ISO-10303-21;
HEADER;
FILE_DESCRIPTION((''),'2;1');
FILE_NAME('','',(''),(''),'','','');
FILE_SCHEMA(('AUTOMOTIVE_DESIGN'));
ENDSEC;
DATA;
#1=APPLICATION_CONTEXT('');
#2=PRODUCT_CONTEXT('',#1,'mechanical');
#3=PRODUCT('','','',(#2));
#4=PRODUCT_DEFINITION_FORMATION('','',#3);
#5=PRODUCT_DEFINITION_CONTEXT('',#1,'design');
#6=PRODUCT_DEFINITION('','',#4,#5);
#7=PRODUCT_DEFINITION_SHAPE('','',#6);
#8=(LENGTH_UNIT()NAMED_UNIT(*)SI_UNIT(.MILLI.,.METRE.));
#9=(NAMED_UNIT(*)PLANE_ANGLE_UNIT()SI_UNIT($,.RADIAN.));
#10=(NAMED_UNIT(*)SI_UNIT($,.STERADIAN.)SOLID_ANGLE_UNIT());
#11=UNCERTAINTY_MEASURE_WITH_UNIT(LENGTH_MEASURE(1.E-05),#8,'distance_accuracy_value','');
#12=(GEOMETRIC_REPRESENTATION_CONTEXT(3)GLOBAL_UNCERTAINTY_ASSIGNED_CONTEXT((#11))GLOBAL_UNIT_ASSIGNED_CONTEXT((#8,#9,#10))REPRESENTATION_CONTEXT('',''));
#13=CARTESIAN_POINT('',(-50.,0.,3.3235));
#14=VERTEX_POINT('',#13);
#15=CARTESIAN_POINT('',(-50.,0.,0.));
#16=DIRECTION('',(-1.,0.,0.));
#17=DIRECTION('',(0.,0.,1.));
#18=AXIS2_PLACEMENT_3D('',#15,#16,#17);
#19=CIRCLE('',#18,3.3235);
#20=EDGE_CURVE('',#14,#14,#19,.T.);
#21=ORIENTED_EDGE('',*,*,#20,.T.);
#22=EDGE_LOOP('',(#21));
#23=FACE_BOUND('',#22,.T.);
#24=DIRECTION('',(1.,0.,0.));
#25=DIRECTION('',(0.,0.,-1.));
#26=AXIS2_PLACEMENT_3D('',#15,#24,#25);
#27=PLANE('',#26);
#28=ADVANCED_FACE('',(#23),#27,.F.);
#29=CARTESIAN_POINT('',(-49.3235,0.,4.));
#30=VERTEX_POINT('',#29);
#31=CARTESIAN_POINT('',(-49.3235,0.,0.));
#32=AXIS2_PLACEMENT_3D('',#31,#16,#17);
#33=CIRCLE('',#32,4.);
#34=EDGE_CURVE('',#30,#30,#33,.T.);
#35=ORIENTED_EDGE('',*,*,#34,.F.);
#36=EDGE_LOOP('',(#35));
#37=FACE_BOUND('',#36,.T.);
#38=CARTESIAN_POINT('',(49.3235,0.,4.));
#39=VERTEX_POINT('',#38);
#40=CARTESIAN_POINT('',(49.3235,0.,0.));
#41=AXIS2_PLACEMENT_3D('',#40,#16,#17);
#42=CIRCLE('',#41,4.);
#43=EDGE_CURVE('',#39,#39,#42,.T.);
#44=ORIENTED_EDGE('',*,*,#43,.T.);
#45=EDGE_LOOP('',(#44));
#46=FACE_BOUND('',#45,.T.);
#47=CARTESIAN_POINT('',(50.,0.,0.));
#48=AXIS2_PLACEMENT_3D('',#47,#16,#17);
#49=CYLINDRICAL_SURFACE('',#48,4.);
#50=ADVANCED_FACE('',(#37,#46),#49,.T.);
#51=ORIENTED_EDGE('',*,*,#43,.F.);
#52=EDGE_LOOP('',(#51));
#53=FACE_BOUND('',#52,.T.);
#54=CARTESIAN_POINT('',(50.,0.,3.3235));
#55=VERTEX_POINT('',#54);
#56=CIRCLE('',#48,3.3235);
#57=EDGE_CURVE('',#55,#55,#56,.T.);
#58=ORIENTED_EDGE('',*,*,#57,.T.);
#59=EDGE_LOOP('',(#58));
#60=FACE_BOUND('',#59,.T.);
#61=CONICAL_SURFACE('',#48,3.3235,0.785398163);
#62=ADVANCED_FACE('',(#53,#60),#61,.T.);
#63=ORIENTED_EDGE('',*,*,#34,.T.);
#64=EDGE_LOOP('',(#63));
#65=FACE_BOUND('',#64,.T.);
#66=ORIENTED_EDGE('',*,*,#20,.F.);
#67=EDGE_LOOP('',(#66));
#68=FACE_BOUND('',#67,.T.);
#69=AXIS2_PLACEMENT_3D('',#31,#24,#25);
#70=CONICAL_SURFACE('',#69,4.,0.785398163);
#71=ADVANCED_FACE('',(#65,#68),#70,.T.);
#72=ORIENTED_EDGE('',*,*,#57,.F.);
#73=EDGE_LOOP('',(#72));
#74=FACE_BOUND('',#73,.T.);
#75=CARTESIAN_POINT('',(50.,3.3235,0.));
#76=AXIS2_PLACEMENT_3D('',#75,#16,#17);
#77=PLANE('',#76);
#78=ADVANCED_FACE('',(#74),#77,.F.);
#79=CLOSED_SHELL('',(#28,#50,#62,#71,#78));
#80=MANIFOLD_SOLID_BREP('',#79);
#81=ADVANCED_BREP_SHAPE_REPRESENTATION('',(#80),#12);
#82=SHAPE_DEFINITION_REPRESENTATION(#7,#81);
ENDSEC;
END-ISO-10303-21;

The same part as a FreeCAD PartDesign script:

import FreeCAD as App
import Part
import Sketcher


def add_polygon(sketch, points):
    """Adds a closed chain of lines whose ends are joined by coincident constraints."""
    first, n = sketch.GeometryCount, len(points)
    for a, b in zip(points, points[1:] + points[:1]):
        sketch.addGeometry(Part.LineSegment(App.Vector(*a, 0), App.Vector(*b, 0)), False)
    for i in range(n):
        sketch.addConstraint(Sketcher.Constraint("Coincident", first + i, 2, first + (i + 1) % n, 1))

doc = App.newDocument("Part")
body = doc.addObject("PartDesign::Body", "Body")

# Sketch on XY plane
sketch1 = body.newObject("Sketcher::SketchObject", "Sketch")
sketch1.AttachmentSupport = (doc.getObject("XY_Plane"), [""])
sketch1.MapMode = "FlatFace"
add_polygon(sketch1, [(-50, 3.3), (-50, 0), (50, 0), (50, 3.3), (49.3, 4), (-49.3, 4)])  # lines 0-5
sketch1.addConstraint([
    Sketcher.Constraint("Vertical", 0),
    Sketcher.Constraint("Horizontal", 1),
    Sketcher.Constraint("Vertical", 2),
    Sketcher.Constraint("Horizontal", 4),
    Sketcher.Constraint("Symmetric", 0, 2, 1, 2, -1, 1),
    Sketcher.Constraint("Perpendicular", 3, 5),
    Sketcher.Constraint("Horizontal", 2, 2, 5, 2),
    Sketcher.Constraint("Equal", 3, 5),
    Sketcher.Constraint("DistanceX", 1, 1, 1, 2, 100.0),
    Sketcher.Constraint("DistanceY", -1, 1, 3, 2, 4.0),
    Sketcher.Constraint("DistanceX", 4, 2, 4, 1, 98.647),
])
revolution = body.newObject("PartDesign::Revolution", "Revolution")
revolution.Profile = sketch1
revolution.ReferenceAxis = (sketch1, ["H_Axis"])
revolution.Angle = 360

doc.recompute()
